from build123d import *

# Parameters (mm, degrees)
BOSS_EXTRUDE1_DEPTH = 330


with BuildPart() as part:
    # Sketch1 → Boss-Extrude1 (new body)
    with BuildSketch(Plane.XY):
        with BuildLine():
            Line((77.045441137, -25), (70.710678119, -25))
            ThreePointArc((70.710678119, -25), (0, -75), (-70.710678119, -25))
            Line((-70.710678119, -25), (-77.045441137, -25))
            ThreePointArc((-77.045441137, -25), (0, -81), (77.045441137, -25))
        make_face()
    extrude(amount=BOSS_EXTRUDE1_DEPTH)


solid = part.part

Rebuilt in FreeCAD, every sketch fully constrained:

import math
import FreeCAD as App
import Part
import Sketcher
from FreeCAD import Vector
Q = App.Units.Quantity

doc = App.newDocument("Part")
body = doc.addObject("PartDesign::Body", "Body")

sketch1 = body.newObject("Sketcher::SketchObject", "Sketch")
sketch1.AttachmentSupport = (doc.getObject("XY_Plane"), [""])
sketch1.MapMode = "FlatFace"
sketch1.addGeometry(Part.LineSegment(Vector(77, -25, 0), Vector(71, -25, 0)), False)
sketch1.addGeometry(Part.ArcOfCircle(Part.Circle(Vector(0, 0, 0), Vector(0, 0, 1), 75), math.radians(-161), math.radians(-19)), False)
sketch1.addGeometry(Part.LineSegment(Vector(-71, -25, 0), Vector(-77, -25, 0)), False)
sketch1.addGeometry(Part.ArcOfCircle(Part.Circle(Vector(0, 0, 0), Vector(0, 0, 1), 81), math.radians(-162), math.radians(-18)), False)
sketch1.addConstraint(Sketcher.Constraint("Coincident", 0, 2, 1, 2))
sketch1.addConstraint(Sketcher.Constraint("Coincident", 1, 1, 2, 1))
sketch1.addConstraint(Sketcher.Constraint("Coincident", 2, 2, 3, 1))
sketch1.addConstraint(Sketcher.Constraint("Coincident", 3, 2, 0, 1))
sketch1.addConstraint(Sketcher.Constraint("Horizontal", 0))
sketch1.addConstraint(Sketcher.Constraint("Horizontal", 2))
sketch1.addConstraint(Sketcher.Constraint("Coincident", 1, 3, -1, 1))
sketch1.addConstraint(Sketcher.Constraint("Coincident", 3, 3, -1, 1))
sketch1.addConstraint(Sketcher.Constraint("Horizontal", 0, 2, 1, 1))
sketch1.addConstraint(Sketcher.Constraint("Radius", 1, Q("75 mm")))
sketch1.addConstraint(Sketcher.Constraint("Radius", 3, Q("81 mm")))
sketch1.addConstraint(Sketcher.Constraint("DistanceY", 0, 2, -1, 1, Q("25 mm")))
pad1 = body.newObject("PartDesign::Pad", "Pad")
pad1.Profile = sketch1
pad1.Length = 330

doc.recompute()
